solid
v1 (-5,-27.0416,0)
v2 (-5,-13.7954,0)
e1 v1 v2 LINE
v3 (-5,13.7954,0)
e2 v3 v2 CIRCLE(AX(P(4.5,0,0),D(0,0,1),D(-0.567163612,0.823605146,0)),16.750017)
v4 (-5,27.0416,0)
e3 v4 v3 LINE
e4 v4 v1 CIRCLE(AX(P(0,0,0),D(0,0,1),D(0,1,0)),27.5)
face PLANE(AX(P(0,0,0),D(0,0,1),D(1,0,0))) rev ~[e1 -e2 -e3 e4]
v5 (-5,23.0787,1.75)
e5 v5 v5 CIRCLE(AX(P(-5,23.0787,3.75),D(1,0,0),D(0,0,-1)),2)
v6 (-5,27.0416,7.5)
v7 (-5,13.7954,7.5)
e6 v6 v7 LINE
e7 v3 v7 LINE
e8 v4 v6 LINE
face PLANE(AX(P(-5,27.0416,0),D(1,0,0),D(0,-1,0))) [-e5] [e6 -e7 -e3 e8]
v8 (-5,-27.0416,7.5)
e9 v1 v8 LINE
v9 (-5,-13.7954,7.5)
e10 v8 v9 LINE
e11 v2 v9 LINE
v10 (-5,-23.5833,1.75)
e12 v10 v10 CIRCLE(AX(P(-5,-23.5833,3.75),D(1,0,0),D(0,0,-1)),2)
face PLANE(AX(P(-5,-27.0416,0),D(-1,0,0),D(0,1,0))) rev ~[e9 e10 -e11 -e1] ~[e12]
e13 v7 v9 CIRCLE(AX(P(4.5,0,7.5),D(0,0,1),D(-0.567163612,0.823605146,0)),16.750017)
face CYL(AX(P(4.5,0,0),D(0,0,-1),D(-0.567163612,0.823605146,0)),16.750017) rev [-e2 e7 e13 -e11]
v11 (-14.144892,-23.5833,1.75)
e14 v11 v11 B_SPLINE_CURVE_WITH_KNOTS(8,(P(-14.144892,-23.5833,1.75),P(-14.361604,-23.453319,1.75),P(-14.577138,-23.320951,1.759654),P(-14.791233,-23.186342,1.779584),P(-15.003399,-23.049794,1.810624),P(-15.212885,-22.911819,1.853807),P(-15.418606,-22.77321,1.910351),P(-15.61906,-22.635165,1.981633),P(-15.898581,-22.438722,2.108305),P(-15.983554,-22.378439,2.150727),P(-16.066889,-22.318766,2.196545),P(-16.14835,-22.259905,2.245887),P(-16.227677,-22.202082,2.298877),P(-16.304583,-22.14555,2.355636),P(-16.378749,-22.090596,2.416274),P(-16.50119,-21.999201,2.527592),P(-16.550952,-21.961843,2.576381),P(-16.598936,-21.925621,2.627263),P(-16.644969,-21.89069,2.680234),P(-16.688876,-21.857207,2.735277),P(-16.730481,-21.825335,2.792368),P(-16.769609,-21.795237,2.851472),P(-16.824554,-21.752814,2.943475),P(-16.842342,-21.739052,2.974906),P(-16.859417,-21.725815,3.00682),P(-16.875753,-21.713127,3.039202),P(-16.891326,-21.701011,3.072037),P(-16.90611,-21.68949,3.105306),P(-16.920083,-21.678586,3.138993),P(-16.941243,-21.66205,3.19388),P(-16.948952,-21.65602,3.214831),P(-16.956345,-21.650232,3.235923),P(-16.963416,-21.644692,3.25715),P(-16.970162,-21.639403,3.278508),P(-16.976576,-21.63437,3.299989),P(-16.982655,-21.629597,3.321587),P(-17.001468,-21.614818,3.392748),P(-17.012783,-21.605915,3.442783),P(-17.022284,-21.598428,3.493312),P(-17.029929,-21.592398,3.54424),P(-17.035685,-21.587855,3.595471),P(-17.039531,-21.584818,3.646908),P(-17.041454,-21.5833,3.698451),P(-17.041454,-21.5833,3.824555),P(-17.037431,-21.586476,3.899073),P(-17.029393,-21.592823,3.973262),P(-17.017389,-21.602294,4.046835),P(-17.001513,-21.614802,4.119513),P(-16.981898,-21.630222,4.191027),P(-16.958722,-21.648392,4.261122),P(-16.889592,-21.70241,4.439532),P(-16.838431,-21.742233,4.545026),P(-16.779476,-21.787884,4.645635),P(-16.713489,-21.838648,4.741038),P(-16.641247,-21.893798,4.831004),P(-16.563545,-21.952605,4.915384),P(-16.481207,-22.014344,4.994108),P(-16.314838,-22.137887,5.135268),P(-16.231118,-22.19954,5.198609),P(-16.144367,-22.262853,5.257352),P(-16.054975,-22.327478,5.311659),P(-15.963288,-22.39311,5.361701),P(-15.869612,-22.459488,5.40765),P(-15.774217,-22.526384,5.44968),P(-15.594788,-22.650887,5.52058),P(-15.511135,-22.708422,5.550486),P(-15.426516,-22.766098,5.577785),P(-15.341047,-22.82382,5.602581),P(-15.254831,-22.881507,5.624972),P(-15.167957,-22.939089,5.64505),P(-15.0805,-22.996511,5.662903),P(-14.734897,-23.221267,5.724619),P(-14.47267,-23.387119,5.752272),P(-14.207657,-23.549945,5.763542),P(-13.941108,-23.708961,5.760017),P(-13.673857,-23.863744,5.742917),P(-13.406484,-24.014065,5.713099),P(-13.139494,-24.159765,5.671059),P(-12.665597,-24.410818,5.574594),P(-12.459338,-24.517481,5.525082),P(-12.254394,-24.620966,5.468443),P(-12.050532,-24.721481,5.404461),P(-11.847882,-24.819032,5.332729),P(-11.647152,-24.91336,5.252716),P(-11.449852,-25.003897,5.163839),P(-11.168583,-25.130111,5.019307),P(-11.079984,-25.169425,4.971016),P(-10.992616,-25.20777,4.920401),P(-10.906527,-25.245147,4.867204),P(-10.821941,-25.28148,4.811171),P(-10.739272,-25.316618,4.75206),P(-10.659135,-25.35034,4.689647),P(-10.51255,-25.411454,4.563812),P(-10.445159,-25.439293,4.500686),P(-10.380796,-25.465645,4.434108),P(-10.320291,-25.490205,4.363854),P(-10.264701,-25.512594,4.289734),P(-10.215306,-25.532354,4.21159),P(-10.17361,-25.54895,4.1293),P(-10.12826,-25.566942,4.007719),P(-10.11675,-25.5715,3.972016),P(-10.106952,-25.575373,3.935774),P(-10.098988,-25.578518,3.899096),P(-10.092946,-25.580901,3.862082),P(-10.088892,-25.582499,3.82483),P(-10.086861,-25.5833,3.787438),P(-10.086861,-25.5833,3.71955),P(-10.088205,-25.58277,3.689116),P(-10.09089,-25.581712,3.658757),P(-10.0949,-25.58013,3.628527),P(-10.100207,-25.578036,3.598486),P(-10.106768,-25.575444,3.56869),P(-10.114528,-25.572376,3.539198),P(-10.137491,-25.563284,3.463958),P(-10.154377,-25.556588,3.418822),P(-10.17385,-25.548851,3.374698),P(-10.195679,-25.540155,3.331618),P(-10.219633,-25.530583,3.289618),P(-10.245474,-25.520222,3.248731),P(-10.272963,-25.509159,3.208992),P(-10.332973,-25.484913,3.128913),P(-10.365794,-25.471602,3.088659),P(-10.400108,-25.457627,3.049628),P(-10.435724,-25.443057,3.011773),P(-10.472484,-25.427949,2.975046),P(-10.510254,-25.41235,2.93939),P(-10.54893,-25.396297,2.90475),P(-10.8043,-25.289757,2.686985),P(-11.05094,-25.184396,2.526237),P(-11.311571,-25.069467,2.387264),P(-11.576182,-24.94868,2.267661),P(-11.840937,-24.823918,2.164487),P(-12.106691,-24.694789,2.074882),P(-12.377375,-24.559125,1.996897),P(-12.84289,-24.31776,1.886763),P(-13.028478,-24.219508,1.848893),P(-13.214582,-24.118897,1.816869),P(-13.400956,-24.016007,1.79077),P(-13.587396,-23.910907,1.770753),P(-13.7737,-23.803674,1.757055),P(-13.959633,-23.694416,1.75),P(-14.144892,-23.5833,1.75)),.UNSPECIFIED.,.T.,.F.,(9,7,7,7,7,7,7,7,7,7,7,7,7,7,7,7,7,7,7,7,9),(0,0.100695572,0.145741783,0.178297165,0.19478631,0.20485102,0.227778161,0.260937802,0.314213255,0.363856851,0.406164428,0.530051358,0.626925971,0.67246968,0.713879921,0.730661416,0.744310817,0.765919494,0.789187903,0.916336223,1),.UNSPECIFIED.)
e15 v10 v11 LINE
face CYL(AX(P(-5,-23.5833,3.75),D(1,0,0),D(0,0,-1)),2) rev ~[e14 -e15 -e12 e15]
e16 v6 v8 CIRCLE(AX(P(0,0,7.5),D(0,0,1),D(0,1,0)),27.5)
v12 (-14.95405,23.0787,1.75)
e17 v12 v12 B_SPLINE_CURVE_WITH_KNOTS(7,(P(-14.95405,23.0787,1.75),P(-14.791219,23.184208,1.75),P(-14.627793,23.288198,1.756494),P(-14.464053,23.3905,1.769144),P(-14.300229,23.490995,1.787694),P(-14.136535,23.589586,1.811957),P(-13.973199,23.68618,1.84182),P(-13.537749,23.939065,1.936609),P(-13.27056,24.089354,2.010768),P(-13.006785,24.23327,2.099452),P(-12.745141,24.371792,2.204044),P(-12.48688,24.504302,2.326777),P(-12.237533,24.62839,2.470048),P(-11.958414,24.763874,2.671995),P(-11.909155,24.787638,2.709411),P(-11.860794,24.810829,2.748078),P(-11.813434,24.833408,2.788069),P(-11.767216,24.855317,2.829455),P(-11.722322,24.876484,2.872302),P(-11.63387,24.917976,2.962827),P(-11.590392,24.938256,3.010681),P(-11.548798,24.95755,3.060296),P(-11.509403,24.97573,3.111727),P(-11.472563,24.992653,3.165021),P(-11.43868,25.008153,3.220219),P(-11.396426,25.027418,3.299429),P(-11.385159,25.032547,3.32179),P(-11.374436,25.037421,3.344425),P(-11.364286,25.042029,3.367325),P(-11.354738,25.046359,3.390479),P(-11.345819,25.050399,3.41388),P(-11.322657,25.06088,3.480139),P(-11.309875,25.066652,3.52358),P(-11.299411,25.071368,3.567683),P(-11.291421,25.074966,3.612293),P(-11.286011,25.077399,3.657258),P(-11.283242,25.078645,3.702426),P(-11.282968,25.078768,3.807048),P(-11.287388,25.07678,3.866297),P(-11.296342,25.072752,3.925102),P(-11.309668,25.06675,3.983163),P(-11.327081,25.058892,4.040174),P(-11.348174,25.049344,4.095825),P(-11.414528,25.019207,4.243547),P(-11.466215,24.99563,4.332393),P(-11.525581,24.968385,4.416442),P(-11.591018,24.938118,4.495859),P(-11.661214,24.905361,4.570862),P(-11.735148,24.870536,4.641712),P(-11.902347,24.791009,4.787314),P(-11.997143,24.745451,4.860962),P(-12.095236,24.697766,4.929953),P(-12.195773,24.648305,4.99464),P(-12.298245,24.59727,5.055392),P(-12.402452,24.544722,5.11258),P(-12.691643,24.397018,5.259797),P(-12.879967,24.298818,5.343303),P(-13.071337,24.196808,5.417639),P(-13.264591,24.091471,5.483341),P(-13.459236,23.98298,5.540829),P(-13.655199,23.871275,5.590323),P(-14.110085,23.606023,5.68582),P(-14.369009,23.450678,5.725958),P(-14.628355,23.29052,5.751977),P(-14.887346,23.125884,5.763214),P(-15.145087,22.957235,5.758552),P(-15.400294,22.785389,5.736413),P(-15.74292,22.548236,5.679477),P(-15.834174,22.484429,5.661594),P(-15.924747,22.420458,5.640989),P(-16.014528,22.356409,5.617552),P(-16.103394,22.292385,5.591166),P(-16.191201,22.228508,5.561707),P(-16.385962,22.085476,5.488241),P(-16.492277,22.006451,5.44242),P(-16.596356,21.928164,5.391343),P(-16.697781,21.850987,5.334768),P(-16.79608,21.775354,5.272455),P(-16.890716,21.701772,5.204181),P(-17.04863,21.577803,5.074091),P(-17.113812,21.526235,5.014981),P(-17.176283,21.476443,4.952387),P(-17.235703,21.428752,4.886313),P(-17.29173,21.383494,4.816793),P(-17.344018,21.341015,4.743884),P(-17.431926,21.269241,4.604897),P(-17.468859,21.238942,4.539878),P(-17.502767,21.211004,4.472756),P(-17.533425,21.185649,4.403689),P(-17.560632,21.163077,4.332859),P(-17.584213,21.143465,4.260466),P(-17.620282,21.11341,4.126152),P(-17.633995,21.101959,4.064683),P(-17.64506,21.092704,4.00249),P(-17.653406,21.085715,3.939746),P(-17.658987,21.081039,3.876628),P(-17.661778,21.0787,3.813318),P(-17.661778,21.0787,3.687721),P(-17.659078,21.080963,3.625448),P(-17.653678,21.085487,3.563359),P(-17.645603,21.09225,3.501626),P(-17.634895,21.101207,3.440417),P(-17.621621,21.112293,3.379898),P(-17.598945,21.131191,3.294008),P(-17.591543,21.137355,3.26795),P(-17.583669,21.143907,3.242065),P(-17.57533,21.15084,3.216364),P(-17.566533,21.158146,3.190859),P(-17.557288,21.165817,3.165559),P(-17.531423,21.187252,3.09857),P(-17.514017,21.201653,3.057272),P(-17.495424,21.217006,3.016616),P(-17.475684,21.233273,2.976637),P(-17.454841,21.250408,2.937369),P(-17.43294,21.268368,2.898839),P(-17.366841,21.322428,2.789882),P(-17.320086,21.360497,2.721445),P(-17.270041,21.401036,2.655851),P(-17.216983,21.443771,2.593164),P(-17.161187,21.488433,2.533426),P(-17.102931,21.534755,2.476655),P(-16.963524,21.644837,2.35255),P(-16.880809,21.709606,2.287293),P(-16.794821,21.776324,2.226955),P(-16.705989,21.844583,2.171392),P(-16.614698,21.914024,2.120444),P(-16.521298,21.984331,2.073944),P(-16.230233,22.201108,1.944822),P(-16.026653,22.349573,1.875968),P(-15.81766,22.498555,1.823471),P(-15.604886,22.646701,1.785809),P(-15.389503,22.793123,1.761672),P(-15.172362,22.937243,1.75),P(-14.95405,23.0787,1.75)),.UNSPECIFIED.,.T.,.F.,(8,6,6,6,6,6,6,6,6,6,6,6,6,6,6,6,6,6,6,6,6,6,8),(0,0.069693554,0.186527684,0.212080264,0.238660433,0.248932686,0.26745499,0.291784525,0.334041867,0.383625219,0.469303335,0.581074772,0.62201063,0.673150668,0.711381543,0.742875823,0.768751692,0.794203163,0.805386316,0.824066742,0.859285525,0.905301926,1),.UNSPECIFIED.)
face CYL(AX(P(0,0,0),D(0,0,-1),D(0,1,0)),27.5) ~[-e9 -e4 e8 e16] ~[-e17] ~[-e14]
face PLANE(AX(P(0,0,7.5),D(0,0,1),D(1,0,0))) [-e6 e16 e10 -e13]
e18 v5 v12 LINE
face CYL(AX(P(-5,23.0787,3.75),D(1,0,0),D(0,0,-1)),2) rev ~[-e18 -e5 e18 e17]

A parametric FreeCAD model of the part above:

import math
import FreeCAD as App
import Part
import Sketcher
Q = App.Units.Quantity

doc = App.newDocument("Part")
body = doc.addObject("PartDesign::Body", "Body")

sketch1 = body.newObject("Sketcher::SketchObject", "Sketch")
sketch1.AttachmentSupport = (doc.getObject("XY_Plane"), [""])
sketch1.MapMode = "FlatFace"
sketch1.addGeometry([
    Part.LineSegment(App.Vector(-5, 14, 0), App.Vector(-5, 27, 0)),
    Part.ArcOfCircle(Part.Circle(App.Vector(0, 0, 0), App.Vector(0, 0, 1), 28), math.radians(100), math.radians(260)),
    Part.LineSegment(App.Vector(-5, -27, 0), App.Vector(-5, -14, 0)),
    Part.ArcOfCircle(Part.Circle(App.Vector(4, 0, 0), App.Vector(0, 0, 1), 17), math.radians(125), math.radians(235)),
], False)
sketch1.addConstraint([
    Sketcher.Constraint("Coincident", 0, 2, 1, 1),
    Sketcher.Constraint("Coincident", 1, 2, 2, 1),
    Sketcher.Constraint("Coincident", 2, 2, 3, 2),
    Sketcher.Constraint("Coincident", 3, 1, 0, 1),
    Sketcher.Constraint("Vertical", 0),
    Sketcher.Constraint("Vertical", 2),
    Sketcher.Constraint("Coincident", 1, 3, -1, 1),
    Sketcher.Constraint("Symmetric", 2, 2, 3, 1, -1),
    Sketcher.Constraint("Radius", 1, Q("27.5 mm")),
    Sketcher.Constraint("Radius", 3, Q("16.75 mm")),
    Sketcher.Constraint("DistanceX", 0, 2, -1, 1, Q("5 mm")),
    Sketcher.Constraint("DistanceX", -1, 1, 3, 3, Q("4.5 mm")),
])
pad1 = body.newObject("PartDesign::Pad", "Pad")
pad1.Profile = sketch1
pad1.Length = 7.5

sketch2 = body.newObject("Sketcher::SketchObject", "Sketch001")
sketch2.AttachmentSupport = (doc.getObject("YZ_Plane"), [""])
sketch2.MapMode = "FlatFace"
sketch2.AttachmentOffset = App.Placement(App.Vector(0, 0, -5), App.Rotation())
sketch2.addGeometry([
    Part.Circle(App.Vector(-23.6, 3.8, 0), App.Vector(0, 0, 1), 1),
    Part.Circle(App.Vector(23.1, 3.8, 0), App.Vector(0, 0, 1), 1),
], False)
sketch2.addConstraint([
    Sketcher.Constraint("Equal", 0, 1),
    Sketcher.Constraint("Horizontal", 0, 3, 1, 3),
    Sketcher.Constraint("Diameter", 0, Q("2 mm")),
    Sketcher.Constraint("DistanceY", -1, 1, 0, 3, Q("3.75 mm")),
    Sketcher.Constraint("DistanceX", 0, 3, 1, 3, Q("46.662 mm")),
    Sketcher.Constraint("DistanceX", 0, 3, -1, 1, Q("23.5833 mm")),
])
pocket1 = body.newObject("PartDesign::Pocket", "Pocket")
pocket1.Profile = sketch2
pocket1.Length = 25.4

sketch3 = body.newObject("Sketcher::SketchObject", "Sketch002")
sketch3.AttachmentSupport = (doc.getObject("YZ_Plane"), [""])
sketch3.MapMode = "FlatFace"
sketch3.AttachmentOffset = App.Placement(App.Vector(0, 0, -5), App.Rotation())
sketch3.addGeometry([
    Part.Circle(App.Vector(-23.6, 3.8, 0), App.Vector(0, 0, 1), 2),
    Part.Circle(App.Vector(23.1, 3.8, 0), App.Vector(0, 0, 1), 2),
], False)
sketch3.addConstraint([
    Sketcher.Constraint("Equal", 0, 1),
    Sketcher.Constraint("Horizontal", 0, 3, 1, 3),
    Sketcher.Constraint("Diameter", 0, Q("4 mm")),
    Sketcher.Constraint("DistanceY", -1, 1, 0, 3, Q("3.75 mm")),
    Sketcher.Constraint("DistanceX", 0, 3, 1, 3, Q("46.662 mm")),
    Sketcher.Constraint("DistanceX", 0, 3, -1, 1, Q("23.5833 mm")),
])
pocket2 = body.newObject("PartDesign::Pocket", "Pocket001")
pocket2.Profile = sketch3
pocket2.Length = 18.575

doc.recompute()
